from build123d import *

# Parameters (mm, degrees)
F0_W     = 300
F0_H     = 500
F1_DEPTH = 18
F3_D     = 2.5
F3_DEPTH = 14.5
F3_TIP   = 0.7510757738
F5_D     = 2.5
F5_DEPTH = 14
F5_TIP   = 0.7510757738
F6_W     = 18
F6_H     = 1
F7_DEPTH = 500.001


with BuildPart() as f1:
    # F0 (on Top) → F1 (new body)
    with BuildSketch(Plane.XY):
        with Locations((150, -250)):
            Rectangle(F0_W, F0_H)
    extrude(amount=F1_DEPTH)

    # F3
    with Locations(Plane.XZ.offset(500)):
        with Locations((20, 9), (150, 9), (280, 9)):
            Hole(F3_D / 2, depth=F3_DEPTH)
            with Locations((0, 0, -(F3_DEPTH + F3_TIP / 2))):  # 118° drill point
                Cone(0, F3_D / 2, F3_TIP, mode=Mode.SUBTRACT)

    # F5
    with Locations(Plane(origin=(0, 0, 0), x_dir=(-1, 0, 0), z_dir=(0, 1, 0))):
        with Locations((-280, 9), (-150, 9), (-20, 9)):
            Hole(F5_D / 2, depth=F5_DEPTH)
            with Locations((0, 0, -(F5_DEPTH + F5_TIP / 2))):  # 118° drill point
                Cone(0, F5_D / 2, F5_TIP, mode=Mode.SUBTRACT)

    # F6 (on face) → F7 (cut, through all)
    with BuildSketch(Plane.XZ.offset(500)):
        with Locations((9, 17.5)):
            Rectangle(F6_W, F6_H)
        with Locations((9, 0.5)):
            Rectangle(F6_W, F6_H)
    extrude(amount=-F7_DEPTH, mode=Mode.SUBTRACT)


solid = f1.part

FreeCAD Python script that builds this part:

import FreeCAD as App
import Part
import Sketcher
from FreeCAD import Vector
Q = App.Units.Quantity

doc = App.newDocument("Part")
params = doc.addObject("Spreadsheet::Sheet", "Params")
for row, (alias, value) in enumerate([
    ("sketch1_width", "300 mm"),
    ("sketch1_height", "500 mm"),
    ("pad1_length", "18 mm"),
    ("sketch2_diameter", "2.5 mm"),
    ("hole_diameter", "2.5 mm"),
    ("hole_depth", "14.5 mm"),
    ("sketch3_diameter", "2.5 mm"),
    ("hole2_diameter", "2.5 mm"),
    ("hole2_depth", "14 mm"),
    ("sketch4_width", "18 mm"),
    ("sketch4_height", "1 mm"),
], start=1):
    params.set(f"A{row}", alias)
    params.set(f"B{row}", "=" + value)
    params.setAlias(f"B{row}", alias)

body = doc.addObject("PartDesign::Body", "Body")

# Sketch on XY plane
sketch1 = body.newObject("Sketcher::SketchObject", "Sketch")
sketch1.AttachmentSupport = (doc.getObject("XY_Plane"), [""])
sketch1.MapMode = "FlatFace"
sketch1.addGeometry(Part.LineSegment(Vector(0, 0, 0), Vector(0, -500, 0)), False)
sketch1.addGeometry(Part.LineSegment(Vector(0, -500, 0), Vector(300, -500, 0)), False)
sketch1.addGeometry(Part.LineSegment(Vector(300, -500, 0), Vector(300, 0, 0)), False)
sketch1.addGeometry(Part.LineSegment(Vector(300, 0, 0), Vector(0, 0, 0)), False)
sketch1.addConstraint(Sketcher.Constraint("Coincident", 0, 2, 1, 1))
sketch1.addConstraint(Sketcher.Constraint("Coincident", 1, 2, 2, 1))
sketch1.addConstraint(Sketcher.Constraint("Coincident", 2, 2, 3, 1))
sketch1.addConstraint(Sketcher.Constraint("Coincident", 3, 2, 0, 1))
sketch1.addConstraint(Sketcher.Constraint("Vertical", 0))
sketch1.addConstraint(Sketcher.Constraint("Horizontal", 1))
sketch1.addConstraint(Sketcher.Constraint("Vertical", 2))
sketch1.addConstraint(Sketcher.Constraint("Horizontal", 3))
sketch1.addConstraint(Sketcher.Constraint("Coincident", 3, 2, -1, 1))
sketch1.addConstraint(Sketcher.Constraint("DistanceX", 1, 1, 1, 2, Q("300 mm")))
sketch1.addConstraint(Sketcher.Constraint("DistanceY", 0, 2, 0, 1, Q("500 mm")))
sketch1.setExpression("Constraints[9]", "Params.sketch1_width")
sketch1.setExpression("Constraints[10]", "Params.sketch1_height")
pad1 = body.newObject("PartDesign::Pad", "Pad")
pad1.Profile = sketch1
pad1.setExpression("Length", "Params.pad1_length")

# Sketch on XZ plane
sketch2 = body.newObject("Sketcher::SketchObject", "Sketch001")
sketch2.AttachmentSupport = (doc.getObject("XZ_Plane"), [""])
sketch2.MapMode = "FlatFace"
sketch2.AttachmentOffset = App.Placement(Vector(0, 0, 500), App.Rotation())
sketch2.addGeometry(Part.Circle(Vector(20, 9, 0), Vector(0, 0, 1), 1.25), False)
sketch2.addGeometry(Part.Circle(Vector(150, 9, 0), Vector(0, 0, 1), 1.25), False)
sketch2.addGeometry(Part.Circle(Vector(280, 9, 0), Vector(0, 0, 1), 1.25), False)
sketch2.addConstraint(Sketcher.Constraint("Equal", 0, 1))
sketch2.addConstraint(Sketcher.Constraint("Equal", 1, 2))
sketch2.addConstraint(Sketcher.Constraint("Horizontal", 0, 3, 1, 3))
sketch2.addConstraint(Sketcher.Constraint("Horizontal", 1, 3, 2, 3))
sketch2.addConstraint(Sketcher.Constraint("Diameter", 0, Q("2.5 mm")))
sketch2.addConstraint(Sketcher.Constraint("DistanceX", -1, 1, 0, 3, Q("20 mm")))
sketch2.addConstraint(Sketcher.Constraint("DistanceY", -1, 1, 0, 3, Q("9 mm")))
sketch2.addConstraint(Sketcher.Constraint("DistanceX", -1, 1, 1, 3, Q("150 mm")))
sketch2.addConstraint(Sketcher.Constraint("DistanceX", -1, 1, 2, 3, Q("280 mm")))
sketch2.setExpression("Constraints[4]", "Params.sketch2_diameter")
doc.recompute()
hole = body.newObject("PartDesign::Hole", "Hole")
hole.Profile = sketch2
hole.ThreadType = "None"
hole.setExpression("Diameter", "Params.hole_diameter")
hole.DepthType = "Dimension"
hole.setExpression("Depth", "Params.hole_depth")
hole.DrillPoint = "Angled"
hole.DrillPointAngle = 118

# Sketch on XZ plane
sketch3 = body.newObject("Sketcher::SketchObject", "Sketch002")
sketch3.AttachmentSupport = (doc.getObject("XZ_Plane"), [""])
sketch3.MapMode = "FlatFace"
sketch3.addGeometry(Part.Circle(Vector(280, 9, 0), Vector(0, 0, 1), 1.25), False)
sketch3.addGeometry(Part.Circle(Vector(150, 9, 0), Vector(0, 0, 1), 1.25), False)
sketch3.addGeometry(Part.Circle(Vector(20, 9, 0), Vector(0, 0, 1), 1.25), False)
sketch3.addConstraint(Sketcher.Constraint("Equal", 0, 1))
sketch3.addConstraint(Sketcher.Constraint("Equal", 1, 2))
sketch3.addConstraint(Sketcher.Constraint("Horizontal", 0, 3, 1, 3))
sketch3.addConstraint(Sketcher.Constraint("Horizontal", 1, 3, 2, 3))
sketch3.addConstraint(Sketcher.Constraint("Diameter", 0, Q("2.5 mm")))
sketch3.addConstraint(Sketcher.Constraint("DistanceX", -1, 1, 0, 3, Q("280 mm")))
sketch3.addConstraint(Sketcher.Constraint("DistanceY", -1, 1, 0, 3, Q("9 mm")))
sketch3.addConstraint(Sketcher.Constraint("DistanceX", -1, 1, 1, 3, Q("150 mm")))
sketch3.addConstraint(Sketcher.Constraint("DistanceX", -1, 1, 2, 3, Q("20 mm")))
sketch3.setExpression("Constraints[4]", "Params.sketch3_diameter")
doc.recompute()
hole2 = body.newObject("PartDesign::Hole", "Hole001")
hole2.Profile = sketch3
hole2.ThreadType = "None"
hole2.setExpression("Diameter", "Params.hole2_diameter")
hole2.DepthType = "Dimension"
hole2.setExpression("Depth", "Params.hole2_depth")
hole2.DrillPoint = "Angled"
hole2.DrillPointAngle = 118
hole2.Reversed = True

# Sketch on XZ plane
sketch4 = body.newObject("Sketcher::SketchObject", "Sketch003")
sketch4.AttachmentSupport = (doc.getObject("XZ_Plane"), [""])
sketch4.MapMode = "FlatFace"
sketch4.AttachmentOffset = App.Placement(Vector(0, 0, 500), App.Rotation())
sketch4.addGeometry(Part.LineSegment(Vector(0, 18, 0), Vector(0, 17, 0)), False)
sketch4.addGeometry(Part.LineSegment(Vector(0, 17, 0), Vector(18, 17, 0)), False)
sketch4.addGeometry(Part.LineSegment(Vector(18, 17, 0), Vector(18, 18, 0)), False)
sketch4.addGeometry(Part.LineSegment(Vector(18, 18, 0), Vector(0, 18, 0)), False)
sketch4.addGeometry(Part.LineSegment(Vector(0, 1, 0), Vector(0, 0, 0)), False)
sketch4.addGeometry(Part.LineSegment(Vector(0, 0, 0), Vector(18, 0, 0)), False)
sketch4.addGeometry(Part.LineSegment(Vector(18, 0, 0), Vector(18, 1, 0)), False)
sketch4.addGeometry(Part.LineSegment(Vector(18, 1, 0), Vector(0, 1, 0)), False)
sketch4.addConstraint(Sketcher.Constraint("Coincident", 0, 2, 1, 1))
sketch4.addConstraint(Sketcher.Constraint("Coincident", 1, 2, 2, 1))
sketch4.addConstraint(Sketcher.Constraint("Coincident", 2, 2, 3, 1))
sketch4.addConstraint(Sketcher.Constraint("Coincident", 3, 2, 0, 1))
sketch4.addConstraint(Sketcher.Constraint("Coincident", 4, 2, 5, 1))
sketch4.addConstraint(Sketcher.Constraint("Coincident", 5, 2, 6, 1))
sketch4.addConstraint(Sketcher.Constraint("Coincident", 6, 2, 7, 1))
sketch4.addConstraint(Sketcher.Constraint("Coincident", 7, 2, 4, 1))
sketch4.addConstraint(Sketcher.Constraint("Vertical", 0))
sketch4.addConstraint(Sketcher.Constraint("Horizontal", 1))
sketch4.addConstraint(Sketcher.Constraint("Vertical", 2))
sketch4.addConstraint(Sketcher.Constraint("Horizontal", 3))
sketch4.addConstraint(Sketcher.Constraint("Vertical", 4))
sketch4.addConstraint(Sketcher.Constraint("Horizontal", 5))
sketch4.addConstraint(Sketcher.Constraint("Vertical", 6))
sketch4.addConstraint(Sketcher.Constraint("Horizontal", 7))
sketch4.addConstraint(Sketcher.Constraint("Coincident", 4, 2, -1, 1))
sketch4.addConstraint(Sketcher.Constraint("PointOnObject", 0, 2, -2))
sketch4.addConstraint(Sketcher.Constraint("Vertical", 2, 2, 5, 2))
sketch4.addConstraint(Sketcher.Constraint("Equal", 2, 4))
sketch4.addConstraint(Sketcher.Constraint("DistanceX", 1, 1, 1, 2, Q("18 mm")))
sketch4.addConstraint(Sketcher.Constraint("DistanceY", 0, 2, 0, 1, Q("1 mm")))
sketch4.addConstraint(Sketcher.Constraint("DistanceY", -1, 1, 0, 2, Q("17 mm")))
sketch4.setExpression("Constraints[20]", "Params.sketch4_width")
sketch4.setExpression("Constraints[21]", "Params.sketch4_height")
pocket1 = body.newObject("PartDesign::Pocket", "Pocket")
pocket1.Profile = sketch4
pocket1.Type = "ThroughAll"

doc.recompute()
